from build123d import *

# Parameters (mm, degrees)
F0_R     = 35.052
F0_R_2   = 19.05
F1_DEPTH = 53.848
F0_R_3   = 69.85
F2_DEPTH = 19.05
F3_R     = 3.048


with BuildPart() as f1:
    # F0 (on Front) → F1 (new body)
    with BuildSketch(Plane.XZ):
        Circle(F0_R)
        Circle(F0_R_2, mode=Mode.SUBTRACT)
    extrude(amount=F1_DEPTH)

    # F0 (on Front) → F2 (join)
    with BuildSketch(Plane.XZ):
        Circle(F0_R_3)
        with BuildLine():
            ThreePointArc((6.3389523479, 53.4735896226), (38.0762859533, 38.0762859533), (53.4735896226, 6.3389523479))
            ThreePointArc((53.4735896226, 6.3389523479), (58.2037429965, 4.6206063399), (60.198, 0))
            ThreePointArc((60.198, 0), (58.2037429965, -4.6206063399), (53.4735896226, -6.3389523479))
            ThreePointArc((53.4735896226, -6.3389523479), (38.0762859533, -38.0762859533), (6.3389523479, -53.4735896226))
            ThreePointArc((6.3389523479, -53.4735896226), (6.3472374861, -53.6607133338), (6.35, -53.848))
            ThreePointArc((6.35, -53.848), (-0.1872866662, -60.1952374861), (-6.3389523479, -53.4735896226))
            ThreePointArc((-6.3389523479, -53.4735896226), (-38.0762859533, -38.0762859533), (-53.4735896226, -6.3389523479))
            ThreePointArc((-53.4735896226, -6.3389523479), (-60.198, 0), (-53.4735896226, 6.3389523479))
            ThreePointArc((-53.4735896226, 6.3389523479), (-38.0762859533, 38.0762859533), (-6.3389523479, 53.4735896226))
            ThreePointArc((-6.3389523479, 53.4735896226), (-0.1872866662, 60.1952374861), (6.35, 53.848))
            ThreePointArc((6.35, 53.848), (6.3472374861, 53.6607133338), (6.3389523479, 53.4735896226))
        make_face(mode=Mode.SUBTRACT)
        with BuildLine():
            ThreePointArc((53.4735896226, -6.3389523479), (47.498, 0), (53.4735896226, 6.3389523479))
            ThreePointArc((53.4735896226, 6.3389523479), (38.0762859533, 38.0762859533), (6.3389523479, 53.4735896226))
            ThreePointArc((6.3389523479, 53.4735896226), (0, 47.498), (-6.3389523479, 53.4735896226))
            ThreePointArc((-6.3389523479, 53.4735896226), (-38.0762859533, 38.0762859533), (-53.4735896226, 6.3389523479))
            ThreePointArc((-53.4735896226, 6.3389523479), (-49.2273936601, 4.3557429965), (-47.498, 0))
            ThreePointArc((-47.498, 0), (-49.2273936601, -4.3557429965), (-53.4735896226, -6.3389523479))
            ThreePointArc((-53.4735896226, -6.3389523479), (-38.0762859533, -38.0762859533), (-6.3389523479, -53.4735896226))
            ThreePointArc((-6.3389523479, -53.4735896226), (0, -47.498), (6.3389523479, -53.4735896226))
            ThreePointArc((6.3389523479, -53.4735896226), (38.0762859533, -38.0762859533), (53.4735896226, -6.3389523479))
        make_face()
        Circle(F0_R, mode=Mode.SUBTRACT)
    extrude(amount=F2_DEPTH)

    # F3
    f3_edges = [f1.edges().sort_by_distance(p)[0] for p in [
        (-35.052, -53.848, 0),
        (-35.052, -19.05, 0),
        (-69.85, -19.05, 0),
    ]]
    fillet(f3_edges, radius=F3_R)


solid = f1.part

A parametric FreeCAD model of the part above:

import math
import FreeCAD as App
import Part
import Sketcher
Q = App.Units.Quantity


def edges_at(feature, points):
    """Names of the edges that pass closest to the given points."""
    edges = feature.Shape.Edges
    near = lambda p: min(range(len(edges)), key=lambda i: edges[i].distToShape(Part.Vertex(*p))[0])
    return sorted({f"Edge{near(p) + 1}" for p in points})

doc = App.newDocument("Part")
body = doc.addObject("PartDesign::Body", "Body")

# Sketch on XZ plane
sketch1 = body.newObject("Sketcher::SketchObject", "Sketch")
sketch1.AttachmentSupport = (doc.getObject("XZ_Plane"), [""])
sketch1.MapMode = "FlatFace"
sketch1.addGeometry([
    Part.Circle(App.Vector(0, 0, 0), App.Vector(0, 0, 1), 35.052),
    Part.Circle(App.Vector(0, 0, 0), App.Vector(0, 0, 1), 19.05),
], False)
sketch1.addConstraint([
    Sketcher.Constraint("Coincident", 0, 3, -1, 1),
    Sketcher.Constraint("Coincident", 1, 3, -1, 1),
    Sketcher.Constraint("Diameter", 1, Q("1.5 in")),
    Sketcher.Constraint("Diameter", 0, Q("2.76 in")),
])
pad1 = body.newObject("PartDesign::Pad", "Pad")
pad1.Profile = sketch1
pad1.Length = Q("2.12 in")

# Sketch on XZ plane
sketch2 = body.newObject("Sketcher::SketchObject", "Sketch001")
sketch2.AttachmentSupport = (doc.getObject("XZ_Plane"), [""])
sketch2.MapMode = "FlatFace"
sketch2.addGeometry([
    Part.Circle(App.Vector(0, 0, 0), App.Vector(0, 0, 1), 69.85),  # 0
    Part.ArcOfCircle(Part.Circle(App.Vector(-53.848, 0, 0), App.Vector(0, 0, 1), 6.35), math.radians(86.619751), math.radians(273.380249)),  # 1
    Part.ArcOfCircle(Part.Circle(App.Vector(-53.848, 0, 0), App.Vector(0, 0, 1), 6.35), math.radians(0), math.radians(86.619751)),  # 2
    Part.ArcOfCircle(Part.Circle(App.Vector(-53.848, 0, 0), App.Vector(0, 0, 1), 6.35), math.radians(-86.619751), math.radians(0)),  # 3
    Part.ArcOfCircle(Part.Circle(App.Vector(0, -53.848, 0), App.Vector(0, 0, 1), 6.35), math.radians(176.619751), math.radians(360)),  # 4
    Part.ArcOfCircle(Part.Circle(App.Vector(0, -53.848, 0), App.Vector(0, 0, 1), 6.35), math.radians(3.380249), math.radians(176.619751)),  # 5
    Part.ArcOfCircle(Part.Circle(App.Vector(0, -53.848, 0), App.Vector(0, 0, 1), 6.35), math.radians(0), math.radians(3.380249)),  # 6
    Part.Circle(App.Vector(0, 0, 0), App.Vector(0, 0, 1), 35.052),  # 7
    Part.ArcOfCircle(Part.Circle(App.Vector(53.848, 0, 0), App.Vector(0, 0, 1), 6.35), math.radians(-93.380249), math.radians(93.380249)),  # 8
    Part.ArcOfCircle(Part.Circle(App.Vector(53.848, 0, 0), App.Vector(0, 0, 1), 6.35), math.radians(93.380249), math.radians(266.619751)),  # 9
    Part.ArcOfCircle(Part.Circle(App.Vector(0, 53.848, 0), App.Vector(0, 0, 1), 6.35), math.radians(-3.380249), math.radians(0)),  # 10
    Part.ArcOfCircle(Part.Circle(App.Vector(0, 53.848, 0), App.Vector(0, 0, 1), 6.35), math.radians(-176.619751), math.radians(-3.380249)),  # 11
    Part.ArcOfCircle(Part.Circle(App.Vector(0, 53.848, 0), App.Vector(0, 0, 1), 6.35), math.radians(0), math.radians(183.380249)),  # 12
], False)
sketch2.addConstraint([
    Sketcher.Constraint("Tangent", 1, 1, 2, 2),
    Sketcher.Constraint("Tangent", 2, 1, 3, 2),
    Sketcher.Constraint("Tangent", 3, 1, 1, 2),
    Sketcher.Constraint("Tangent", 4, 1, 5, 2),
    Sketcher.Constraint("Tangent", 5, 1, 6, 2),
    Sketcher.Constraint("Tangent", 6, 1, 4, 2),
    Sketcher.Constraint("Tangent", 8, 1, 9, 2),
    Sketcher.Constraint("Coincident", 9, 1, 8, 2),
    Sketcher.Constraint("Tangent", 10, 1, 11, 2),
    Sketcher.Constraint("Tangent", 11, 1, 12, 2),
    Sketcher.Constraint("Tangent", 12, 1, 10, 2),
    Sketcher.Constraint("Coincident", 0, 3, -1, 1),
    Sketcher.Constraint("Coincident", 7, 3, -1, 1),
    Sketcher.Constraint("Equal", 3, 4),
    Sketcher.Constraint("Equal", 6, 8),
    Sketcher.Constraint("Equal", 9, 10),
    Sketcher.Constraint("Symmetric", 1, 3, 8, 3, -1, 1),
    Sketcher.Constraint("Symmetric", 4, 3, 10, 3, -1, 1),
    Sketcher.Constraint("Symmetric", 4, 1, 5, 1, -2),
    Sketcher.Constraint("Symmetric", 3, 1, 8, 1, -2),
    Sketcher.Constraint("PointOnObject", 2, 1, -1),
    Sketcher.Constraint("Horizontal", 5, 3, 6, 1),
    Sketcher.Constraint("Horizontal", 1, 1, 9, 1),
    Sketcher.Constraint("Horizontal", 10, 1, 11, 1),
    Sketcher.Constraint("Horizontal", 11, 3, 12, 1),
    Sketcher.Constraint("Vertical", 1, 1, 3, 1),
    Sketcher.Constraint("Vertical", 5, 1, 10, 1),
    Sketcher.Constraint("Diameter", 0, Q("5.5 in")),
    Sketcher.Constraint("Diameter", 7, Q("2.76 in")),
    Sketcher.Constraint("Radius", 1, Q("0.25 in")),
    Sketcher.Constraint("DistanceX", 1, 3, -1, 1, Q("2.12 in")),
    Sketcher.Constraint("DistanceY", 4, 3, -1, 1, Q("2.12 in")),
    Sketcher.Constraint("DistanceX", 1, 1, -1, 1, Q("53.47359 mm")),
    Sketcher.Constraint("DistanceY", 4, 1, -1, 1, Q("53.47359 mm")),
])
pad2 = body.newObject("PartDesign::Pad", "Pad001")
pad2.Profile = sketch2
pad2.Length = Q("0.75 in")
doc.recompute()

fillet = body.newObject("PartDesign::Fillet", "Fillet")
fillet.Base = (pad2, edges_at(pad2, [(-35.052, -53.848, 0), (-35.052, -19.05, 0), (-69.85, -19.05, 0)]))
fillet.Radius = Q("0.12 in")

doc.recompute()
